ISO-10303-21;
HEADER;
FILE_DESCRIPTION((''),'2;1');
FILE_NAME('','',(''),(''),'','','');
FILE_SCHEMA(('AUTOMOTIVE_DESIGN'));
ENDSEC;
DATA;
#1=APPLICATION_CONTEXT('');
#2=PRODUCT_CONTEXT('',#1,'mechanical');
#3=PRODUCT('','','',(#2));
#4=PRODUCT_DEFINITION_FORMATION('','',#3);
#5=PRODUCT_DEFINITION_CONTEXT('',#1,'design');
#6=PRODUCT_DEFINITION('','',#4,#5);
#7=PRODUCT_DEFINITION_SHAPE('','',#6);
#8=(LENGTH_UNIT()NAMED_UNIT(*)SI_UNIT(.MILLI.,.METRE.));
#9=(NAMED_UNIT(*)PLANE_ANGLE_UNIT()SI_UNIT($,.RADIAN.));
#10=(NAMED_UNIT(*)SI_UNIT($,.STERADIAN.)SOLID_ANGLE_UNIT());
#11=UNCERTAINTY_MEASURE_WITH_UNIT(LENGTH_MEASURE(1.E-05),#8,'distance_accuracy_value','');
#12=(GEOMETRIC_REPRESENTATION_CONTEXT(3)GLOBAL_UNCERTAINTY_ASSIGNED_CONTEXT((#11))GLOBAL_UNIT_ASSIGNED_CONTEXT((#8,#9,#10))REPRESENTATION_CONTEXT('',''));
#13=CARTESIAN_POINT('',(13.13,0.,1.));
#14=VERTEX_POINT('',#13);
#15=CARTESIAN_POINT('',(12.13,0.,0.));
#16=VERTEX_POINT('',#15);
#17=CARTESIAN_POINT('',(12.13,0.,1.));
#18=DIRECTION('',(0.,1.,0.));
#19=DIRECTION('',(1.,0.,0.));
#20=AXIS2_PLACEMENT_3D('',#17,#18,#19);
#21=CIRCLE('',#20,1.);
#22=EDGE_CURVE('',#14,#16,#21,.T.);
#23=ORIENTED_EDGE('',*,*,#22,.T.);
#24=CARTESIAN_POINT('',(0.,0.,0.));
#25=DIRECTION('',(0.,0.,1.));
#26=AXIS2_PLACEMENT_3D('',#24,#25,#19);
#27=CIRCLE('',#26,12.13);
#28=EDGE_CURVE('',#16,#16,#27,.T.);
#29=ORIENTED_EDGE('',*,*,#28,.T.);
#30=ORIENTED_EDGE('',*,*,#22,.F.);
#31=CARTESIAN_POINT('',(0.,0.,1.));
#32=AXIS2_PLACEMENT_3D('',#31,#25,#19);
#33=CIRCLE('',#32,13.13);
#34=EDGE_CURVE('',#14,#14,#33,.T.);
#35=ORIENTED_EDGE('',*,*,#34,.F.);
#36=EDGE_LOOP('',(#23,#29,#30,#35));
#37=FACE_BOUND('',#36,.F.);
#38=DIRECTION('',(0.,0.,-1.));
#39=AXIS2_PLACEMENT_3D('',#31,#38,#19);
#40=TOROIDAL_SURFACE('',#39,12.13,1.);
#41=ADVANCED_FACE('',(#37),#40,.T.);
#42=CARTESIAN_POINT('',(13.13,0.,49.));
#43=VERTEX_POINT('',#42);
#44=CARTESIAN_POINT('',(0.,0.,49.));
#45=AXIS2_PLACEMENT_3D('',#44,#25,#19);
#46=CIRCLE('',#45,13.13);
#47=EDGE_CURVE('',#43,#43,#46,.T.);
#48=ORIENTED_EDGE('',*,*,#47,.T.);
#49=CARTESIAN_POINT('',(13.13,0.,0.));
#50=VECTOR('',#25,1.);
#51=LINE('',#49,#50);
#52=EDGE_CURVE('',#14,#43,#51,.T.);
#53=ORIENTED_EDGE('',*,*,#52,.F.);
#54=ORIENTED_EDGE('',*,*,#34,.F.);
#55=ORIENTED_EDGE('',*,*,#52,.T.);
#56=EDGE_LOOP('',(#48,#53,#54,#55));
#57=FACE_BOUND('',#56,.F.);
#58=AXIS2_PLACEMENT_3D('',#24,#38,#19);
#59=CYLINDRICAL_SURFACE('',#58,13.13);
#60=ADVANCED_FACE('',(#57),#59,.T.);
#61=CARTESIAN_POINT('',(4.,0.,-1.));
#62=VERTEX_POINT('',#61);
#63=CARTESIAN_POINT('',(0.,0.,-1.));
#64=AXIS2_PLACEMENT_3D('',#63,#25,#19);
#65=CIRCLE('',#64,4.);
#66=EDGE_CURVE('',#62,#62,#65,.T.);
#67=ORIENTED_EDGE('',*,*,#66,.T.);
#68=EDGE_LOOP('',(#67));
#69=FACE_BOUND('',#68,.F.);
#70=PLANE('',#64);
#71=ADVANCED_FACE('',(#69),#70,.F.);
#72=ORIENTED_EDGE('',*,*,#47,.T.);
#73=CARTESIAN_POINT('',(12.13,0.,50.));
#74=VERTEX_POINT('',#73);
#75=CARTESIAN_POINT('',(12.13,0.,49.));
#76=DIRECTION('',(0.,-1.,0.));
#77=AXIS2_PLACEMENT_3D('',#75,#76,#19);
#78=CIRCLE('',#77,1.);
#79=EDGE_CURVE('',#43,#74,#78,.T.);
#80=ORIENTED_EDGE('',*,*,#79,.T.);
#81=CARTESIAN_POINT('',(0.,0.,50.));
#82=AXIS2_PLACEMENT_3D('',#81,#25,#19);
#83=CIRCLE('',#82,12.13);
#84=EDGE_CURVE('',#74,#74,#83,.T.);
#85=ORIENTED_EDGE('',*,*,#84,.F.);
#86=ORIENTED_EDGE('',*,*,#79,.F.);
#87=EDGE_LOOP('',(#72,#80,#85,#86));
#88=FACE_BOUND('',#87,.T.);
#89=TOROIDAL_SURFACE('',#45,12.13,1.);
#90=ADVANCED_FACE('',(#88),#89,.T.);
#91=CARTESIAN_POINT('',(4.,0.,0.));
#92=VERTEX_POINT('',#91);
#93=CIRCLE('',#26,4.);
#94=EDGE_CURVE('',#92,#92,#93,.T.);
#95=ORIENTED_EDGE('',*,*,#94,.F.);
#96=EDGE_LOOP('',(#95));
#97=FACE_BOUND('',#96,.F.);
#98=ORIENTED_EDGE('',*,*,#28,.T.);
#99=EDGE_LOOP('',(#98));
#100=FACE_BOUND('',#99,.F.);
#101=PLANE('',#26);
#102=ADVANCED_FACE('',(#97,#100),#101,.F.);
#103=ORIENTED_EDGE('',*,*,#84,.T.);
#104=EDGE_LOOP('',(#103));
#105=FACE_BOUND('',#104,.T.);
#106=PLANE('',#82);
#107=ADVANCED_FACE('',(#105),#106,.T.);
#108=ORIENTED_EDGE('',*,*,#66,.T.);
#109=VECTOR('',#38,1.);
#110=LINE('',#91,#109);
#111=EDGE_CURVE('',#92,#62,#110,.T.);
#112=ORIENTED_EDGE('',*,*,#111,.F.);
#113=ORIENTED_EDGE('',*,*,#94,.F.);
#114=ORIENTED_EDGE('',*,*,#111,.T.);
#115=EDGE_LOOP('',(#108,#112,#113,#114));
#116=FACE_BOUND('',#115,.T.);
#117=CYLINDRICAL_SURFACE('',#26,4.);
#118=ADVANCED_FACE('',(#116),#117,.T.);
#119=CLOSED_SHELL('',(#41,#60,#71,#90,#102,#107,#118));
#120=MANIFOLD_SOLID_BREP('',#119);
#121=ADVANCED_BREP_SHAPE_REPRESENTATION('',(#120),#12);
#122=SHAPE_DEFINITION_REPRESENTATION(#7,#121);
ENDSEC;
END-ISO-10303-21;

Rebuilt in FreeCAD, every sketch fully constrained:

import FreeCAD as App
import Part
import Sketcher
Q = App.Units.Quantity


def edges_at(feature, points):
    """Names of the edges that pass closest to the given points."""
    edges = feature.Shape.Edges
    near = lambda p: min(range(len(edges)), key=lambda i: edges[i].distToShape(Part.Vertex(*p))[0])
    return sorted({f"Edge{near(p) + 1}" for p in points})

doc = App.newDocument("Part")
body = doc.addObject("PartDesign::Body", "Body")

# Sketch on XY plane
sketch1 = body.newObject("Sketcher::SketchObject", "Sketch")
sketch1.AttachmentSupport = (doc.getObject("XY_Plane"), [""])
sketch1.MapMode = "FlatFace"
sketch1.addGeometry(Part.Circle(App.Vector(0, 0, 0), App.Vector(0, 0, 1), 13), False)
sketch1.addConstraint(Sketcher.Constraint("Coincident", 0, 3, -1, 1))
sketch1.addConstraint(Sketcher.Constraint("Diameter", 0, Q("26.26 mm")))
pad1 = body.newObject("PartDesign::Pad", "Pad")
pad1.Profile = sketch1
pad1.Length = 50

# Sketch on XY plane
sketch2 = body.newObject("Sketcher::SketchObject", "Sketch001")
sketch2.AttachmentSupport = (doc.getObject("XY_Plane"), [""])
sketch2.MapMode = "FlatFace"
sketch2.addGeometry(Part.Circle(App.Vector(0, 0, 0), App.Vector(0, 0, 1), 4), False)
sketch2.addConstraint(Sketcher.Constraint("Coincident", 0, 3, -1, 1))
sketch2.addConstraint(Sketcher.Constraint("Diameter", 0, Q("8 mm")))
pad2 = body.newObject("PartDesign::Pad", "Pad001")
pad2.Profile = sketch2
pad2.Length = 1
pad2.Reversed = True
doc.recompute()

fillet = body.newObject("PartDesign::Fillet", "Fillet")
fillet.Base = (pad2, edges_at(pad2, [(-13.13, 0, 0), (-13.13, 0, 50)]))
fillet.Radius = 1

doc.recompute()
